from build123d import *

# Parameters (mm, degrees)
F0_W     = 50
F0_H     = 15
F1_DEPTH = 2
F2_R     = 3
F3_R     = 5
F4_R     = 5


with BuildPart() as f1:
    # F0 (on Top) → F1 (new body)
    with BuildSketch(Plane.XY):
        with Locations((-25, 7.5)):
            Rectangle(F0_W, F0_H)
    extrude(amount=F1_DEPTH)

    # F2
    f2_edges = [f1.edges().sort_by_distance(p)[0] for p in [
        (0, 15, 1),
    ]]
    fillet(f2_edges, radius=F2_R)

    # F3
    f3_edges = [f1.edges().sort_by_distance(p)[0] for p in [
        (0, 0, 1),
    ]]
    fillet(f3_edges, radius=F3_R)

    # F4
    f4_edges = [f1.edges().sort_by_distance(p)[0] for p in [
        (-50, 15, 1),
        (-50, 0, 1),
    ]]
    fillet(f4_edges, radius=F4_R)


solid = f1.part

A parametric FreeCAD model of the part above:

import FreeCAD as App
import Part
import Sketcher


def edges_at(feature, points):
    """Names of the edges that pass closest to the given points."""
    edges = feature.Shape.Edges
    near = lambda p: min(range(len(edges)), key=lambda i: edges[i].distToShape(Part.Vertex(*p))[0])
    return sorted({f"Edge{near(p) + 1}" for p in points})


def add_polygon(sketch, points):
    """Adds a closed chain of lines whose ends are joined by coincident constraints."""
    first, n = sketch.GeometryCount, len(points)
    for a, b in zip(points, points[1:] + points[:1]):
        sketch.addGeometry(Part.LineSegment(App.Vector(*a, 0), App.Vector(*b, 0)), False)
    for i in range(n):
        sketch.addConstraint(Sketcher.Constraint("Coincident", first + i, 2, first + (i + 1) % n, 1))

doc = App.newDocument("Part")
body = doc.addObject("PartDesign::Body", "Body")

# Sketch on XY plane
sketch1 = body.newObject("Sketcher::SketchObject", "Sketch")
sketch1.AttachmentSupport = (doc.getObject("XY_Plane"), [""])
sketch1.MapMode = "FlatFace"
add_polygon(sketch1, [(-50, 15), (-50, 0), (0, 0), (0, 15)])  # lines 0-3
sketch1.addConstraint([
    Sketcher.Constraint("Vertical", 0),
    Sketcher.Constraint("Horizontal", 1),
    Sketcher.Constraint("Vertical", 2),
    Sketcher.Constraint("Horizontal", 3),
    Sketcher.Constraint("Coincident", 1, 2, -1, 1),
    Sketcher.Constraint("DistanceX", 1, 1, 1, 2, 50.0),
    Sketcher.Constraint("DistanceY", 0, 2, 0, 1, 15.0),
])
pad1 = body.newObject("PartDesign::Pad", "Pad")
pad1.Profile = sketch1
pad1.Length = 2
doc.recompute()

fillet = body.newObject("PartDesign::Fillet", "Fillet")
fillet.Base = (pad1, edges_at(pad1, [(0, 15, 1)]))
fillet.Radius = 3
doc.recompute()

fillet2 = body.newObject("PartDesign::Fillet", "Fillet001")
fillet2.Base = (fillet, edges_at(fillet, [(0, 0, 1)]))
fillet2.Radius = 5
doc.recompute()

fillet3 = body.newObject("PartDesign::Fillet", "Fillet002")
fillet3.Base = (fillet2, edges_at(fillet2, [(-50, 15, 1), (-50, 0, 1)]))
fillet3.Radius = 5

doc.recompute()
